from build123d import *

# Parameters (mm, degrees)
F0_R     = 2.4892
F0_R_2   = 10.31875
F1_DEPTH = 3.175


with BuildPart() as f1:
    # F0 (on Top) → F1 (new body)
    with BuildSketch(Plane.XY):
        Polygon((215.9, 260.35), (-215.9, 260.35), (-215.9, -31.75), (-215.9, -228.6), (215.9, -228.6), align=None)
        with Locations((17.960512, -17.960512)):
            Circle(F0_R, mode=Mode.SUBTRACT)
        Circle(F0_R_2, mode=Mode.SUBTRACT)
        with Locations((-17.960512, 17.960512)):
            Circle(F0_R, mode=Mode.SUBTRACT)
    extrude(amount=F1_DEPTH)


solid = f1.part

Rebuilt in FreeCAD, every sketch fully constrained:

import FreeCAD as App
import Part
import Sketcher

V = App.Vector
Q = App.Units.Quantity


def add_polygon(sketch, points):
    """Adds a closed chain of lines whose ends are joined by coincident constraints."""
    first, n = sketch.GeometryCount, len(points)
    for a, b in zip(points, points[1:] + points[:1]):
        sketch.addGeometry(Part.LineSegment(App.Vector(*a, 0), App.Vector(*b, 0)), False)
    for i in range(n):
        sketch.addConstraint(Sketcher.Constraint("Coincident", first + i, 2, first + (i + 1) % n, 1))

doc = App.newDocument("Part")
params = doc.addObject("Spreadsheet::Sheet", "Params")
for row, (alias, value) in enumerate([
    ("sketch1_width", "17 in"),
    ("sketch1_diameter", "0.196 in"),
    ("sketch1_diameter2", "0.8125 in"),
    ("sketch1_height", "19.25 in"),
    ("pad1_length", "0.125 in"),
], start=1):
    params.set(f"A{row}", alias)
    params.set(f"B{row}", "=" + value)
    params.setAlias(f"B{row}", alias)

body = doc.addObject("PartDesign::Body", "Body")

sketch1 = body.newObject("Sketcher::SketchObject", "Sketch")
sketch1.AttachmentSupport = (doc.getObject("XY_Plane"), [""])
sketch1.MapMode = "FlatFace"
add_polygon(sketch1, [(215.9, 260.4), (-215.9, 260.4), (-215.9, -228.6), (215.9, -228.6)])
sketch1.addGeometry(Part.Circle(V(18, -18, 0), V(0, 0, 1), 2.5), False)
sketch1.addGeometry(Part.Circle(V(-18, 18, 0), V(0, 0, 1), 2.5), False)
sketch1.addGeometry(Part.Circle(V(0, 0, 0), V(0, 0, 1), 10.3), False)
sketch1.addConstraint(Sketcher.Constraint("Horizontal", 0))
sketch1.addConstraint(Sketcher.Constraint("Vertical", 1))
sketch1.addConstraint(Sketcher.Constraint("Horizontal", 2))
sketch1.addConstraint(Sketcher.Constraint("Vertical", 3))
sketch1.addConstraint(Sketcher.Constraint("Coincident", 6, 3, -1, 1))
sketch1.addConstraint(Sketcher.Constraint("Equal", 4, 5))
sketch1.addConstraint(Sketcher.Constraint("Symmetric", 4, 3, 5, 3, -1, 1))
sketch1.addConstraint(Sketcher.Constraint("DistanceX", 0, 2, 0, 1, Q("17 in")))
sketch1.addConstraint(Sketcher.Constraint("Diameter", 4, Q("0.196 in")))
sketch1.addConstraint(Sketcher.Constraint("Diameter", 6, Q("0.8125 in")))
sketch1.addConstraint(Sketcher.Constraint("DistanceY", 1, 2, -1, 1, Q("9 in")))
sketch1.addConstraint(Sketcher.Constraint("DistanceY", 1, 2, 1, 1, Q("19.25 in")))
sketch1.addConstraint(Sketcher.Constraint("DistanceX", 0, 2, -1, 1, Q("8.5 in")))
sketch1.addConstraint(Sketcher.Constraint("DistanceX", 0, 2, 5, 3, Q("197.939488 mm")))
sketch1.addConstraint(Sketcher.Constraint("DistanceY", 5, 3, 0, 2, Q("242.389488 mm")))
sketch1.setExpression("Constraints[11]", "Params.sketch1_width")
sketch1.setExpression("Constraints[12]", "Params.sketch1_diameter")
sketch1.setExpression("Constraints[13]", "Params.sketch1_diameter2")
sketch1.setExpression("Constraints[15]", "Params.sketch1_height")
pad1 = body.newObject("PartDesign::Pad", "Pad")
pad1.Profile = sketch1
pad1.setExpression("Length", "Params.pad1_length")

doc.recompute()
